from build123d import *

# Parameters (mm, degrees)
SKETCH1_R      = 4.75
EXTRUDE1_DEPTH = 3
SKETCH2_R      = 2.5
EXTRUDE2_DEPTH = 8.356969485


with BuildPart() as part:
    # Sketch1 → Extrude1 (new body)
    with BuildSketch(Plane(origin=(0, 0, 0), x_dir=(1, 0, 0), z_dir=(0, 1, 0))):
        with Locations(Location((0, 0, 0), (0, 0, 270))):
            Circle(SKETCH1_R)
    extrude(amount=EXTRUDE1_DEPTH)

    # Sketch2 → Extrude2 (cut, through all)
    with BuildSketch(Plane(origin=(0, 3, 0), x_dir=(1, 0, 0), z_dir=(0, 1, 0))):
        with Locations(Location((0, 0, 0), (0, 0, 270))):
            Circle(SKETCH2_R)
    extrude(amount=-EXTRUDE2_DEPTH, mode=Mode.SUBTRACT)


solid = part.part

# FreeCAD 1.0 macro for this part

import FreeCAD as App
import Part
import Sketcher

V = App.Vector
Q = App.Units.Quantity

doc = App.newDocument("Part")
body = doc.addObject("PartDesign::Body", "Body")

# Sketch on XZ plane
sketch1 = doc.addObject("Sketcher::SketchObject", "Sketch")
body.addObject(sketch1)
sketch1.AttachmentSupport = (doc.XZ_Plane, [""])
sketch1.MapMode = "FlatFace"
sketch1.addGeometry(Part.Circle(V(0, 0, 0), V(0, 0, 1), 4.8), False)
sketch1.addConstraint(Sketcher.Constraint("Coincident", 0, 3, -1, 1))
sketch1.addConstraint(Sketcher.Constraint("Diameter", 0, Q("9.5 mm")))
pad1 = doc.addObject("PartDesign::Pad", "Pad")
body.addObject(pad1)
pad1.Profile = sketch1
pad1.Length = 3
pad1.Reversed = True

# Sketch on XZ plane
sketch2 = doc.addObject("Sketcher::SketchObject", "Sketch001")
body.addObject(sketch2)
sketch2.AttachmentSupport = (doc.XZ_Plane, [""])
sketch2.MapMode = "FlatFace"
sketch2.AttachmentOffset = App.Placement(V(0, 0, -3), App.Rotation())
sketch2.addGeometry(Part.Circle(V(0, 0, 0), V(0, 0, 1), 2.5), False)
sketch2.addConstraint(Sketcher.Constraint("Coincident", 0, 3, -1, 1))
sketch2.addConstraint(Sketcher.Constraint("Diameter", 0, Q("5 mm")))
pocket1 = doc.addObject("PartDesign::Pocket", "Pocket")
body.addObject(pocket1)
pocket1.Profile = sketch2
pocket1.Type = "ThroughAll"
pocket1.Reversed = True

doc.recompute()
